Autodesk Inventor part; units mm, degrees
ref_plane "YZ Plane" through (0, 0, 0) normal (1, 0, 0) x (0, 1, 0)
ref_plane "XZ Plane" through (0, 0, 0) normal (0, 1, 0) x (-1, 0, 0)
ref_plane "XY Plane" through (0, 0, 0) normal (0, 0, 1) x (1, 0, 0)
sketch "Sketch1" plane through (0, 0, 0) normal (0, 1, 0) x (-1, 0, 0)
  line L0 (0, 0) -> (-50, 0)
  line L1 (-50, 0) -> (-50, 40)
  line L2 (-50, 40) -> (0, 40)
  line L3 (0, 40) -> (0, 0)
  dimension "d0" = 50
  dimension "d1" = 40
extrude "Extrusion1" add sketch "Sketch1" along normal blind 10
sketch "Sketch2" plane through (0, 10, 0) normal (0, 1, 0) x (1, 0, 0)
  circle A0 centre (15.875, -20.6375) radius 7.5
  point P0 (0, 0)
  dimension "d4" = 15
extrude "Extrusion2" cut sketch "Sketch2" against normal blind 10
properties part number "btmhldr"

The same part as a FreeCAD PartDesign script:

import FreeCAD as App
import Part
import Sketcher

V = App.Vector
Q = App.Units.Quantity

doc = App.newDocument("Part")
body = doc.addObject("PartDesign::Body", "Body")

# Sketch on XZ plane
sketch1 = doc.addObject("Sketcher::SketchObject", "Sketch")
body.addObject(sketch1)
sketch1.AttachmentSupport = (doc.XZ_Plane, [""])
sketch1.MapMode = "FlatFace"
sketch1.addGeometry([
    Part.LineSegment(V(50, 0, 0), V(0, 0, 0)),
    Part.LineSegment(V(0, 0, 0), V(0, 40, 0)),
    Part.LineSegment(V(0, 40, 0), V(50, 40, 0)),
    Part.LineSegment(V(50, 40, 0), V(50, 0, 0)),
], False)
sketch1.addConstraint([
    Sketcher.Constraint("Coincident", 0, 2, 1, 1),
    Sketcher.Constraint("Coincident", 1, 2, 2, 1),
    Sketcher.Constraint("Coincident", 2, 2, 3, 1),
    Sketcher.Constraint("Coincident", 3, 2, 0, 1),
    Sketcher.Constraint("Horizontal", 0),
    Sketcher.Constraint("Vertical", 1),
    Sketcher.Constraint("Horizontal", 2),
    Sketcher.Constraint("Vertical", 3),
    Sketcher.Constraint("Coincident", 0, 2, -1, 1),
    Sketcher.Constraint("DistanceX", 0, 2, 0, 1, Q("50 mm")),
    Sketcher.Constraint("DistanceY", 1, 1, 1, 2, Q("40 mm")),
])
pad1 = doc.addObject("PartDesign::Pad", "Pad")
body.addObject(pad1)
pad1.Profile = sketch1
pad1.Length = 10
pad1.Reversed = True

# Sketch on XZ plane
sketch2 = doc.addObject("Sketcher::SketchObject", "Sketch001")
body.addObject(sketch2)
sketch2.AttachmentSupport = (doc.XZ_Plane, [""])
sketch2.MapMode = "FlatFace"
sketch2.AttachmentOffset = App.Placement(V(0, 0, -10), App.Rotation())
sketch2.addGeometry(Part.Circle(V(15.875, 20.6375, 0), V(0, 0, 1), 7.5), False)
sketch2.addConstraint([
    Sketcher.Constraint("Diameter", 0, Q("15 mm")),
    Sketcher.Constraint("DistanceX", -1, 1, 0, 3, Q("15.875 mm")),
    Sketcher.Constraint("DistanceY", -1, 1, 0, 3, Q("20.6375 mm")),
])
pocket1 = doc.addObject("PartDesign::Pocket", "Pocket")
body.addObject(pocket1)
pocket1.Profile = sketch2
pocket1.Length = 10
pocket1.Reversed = True

doc.recompute()
